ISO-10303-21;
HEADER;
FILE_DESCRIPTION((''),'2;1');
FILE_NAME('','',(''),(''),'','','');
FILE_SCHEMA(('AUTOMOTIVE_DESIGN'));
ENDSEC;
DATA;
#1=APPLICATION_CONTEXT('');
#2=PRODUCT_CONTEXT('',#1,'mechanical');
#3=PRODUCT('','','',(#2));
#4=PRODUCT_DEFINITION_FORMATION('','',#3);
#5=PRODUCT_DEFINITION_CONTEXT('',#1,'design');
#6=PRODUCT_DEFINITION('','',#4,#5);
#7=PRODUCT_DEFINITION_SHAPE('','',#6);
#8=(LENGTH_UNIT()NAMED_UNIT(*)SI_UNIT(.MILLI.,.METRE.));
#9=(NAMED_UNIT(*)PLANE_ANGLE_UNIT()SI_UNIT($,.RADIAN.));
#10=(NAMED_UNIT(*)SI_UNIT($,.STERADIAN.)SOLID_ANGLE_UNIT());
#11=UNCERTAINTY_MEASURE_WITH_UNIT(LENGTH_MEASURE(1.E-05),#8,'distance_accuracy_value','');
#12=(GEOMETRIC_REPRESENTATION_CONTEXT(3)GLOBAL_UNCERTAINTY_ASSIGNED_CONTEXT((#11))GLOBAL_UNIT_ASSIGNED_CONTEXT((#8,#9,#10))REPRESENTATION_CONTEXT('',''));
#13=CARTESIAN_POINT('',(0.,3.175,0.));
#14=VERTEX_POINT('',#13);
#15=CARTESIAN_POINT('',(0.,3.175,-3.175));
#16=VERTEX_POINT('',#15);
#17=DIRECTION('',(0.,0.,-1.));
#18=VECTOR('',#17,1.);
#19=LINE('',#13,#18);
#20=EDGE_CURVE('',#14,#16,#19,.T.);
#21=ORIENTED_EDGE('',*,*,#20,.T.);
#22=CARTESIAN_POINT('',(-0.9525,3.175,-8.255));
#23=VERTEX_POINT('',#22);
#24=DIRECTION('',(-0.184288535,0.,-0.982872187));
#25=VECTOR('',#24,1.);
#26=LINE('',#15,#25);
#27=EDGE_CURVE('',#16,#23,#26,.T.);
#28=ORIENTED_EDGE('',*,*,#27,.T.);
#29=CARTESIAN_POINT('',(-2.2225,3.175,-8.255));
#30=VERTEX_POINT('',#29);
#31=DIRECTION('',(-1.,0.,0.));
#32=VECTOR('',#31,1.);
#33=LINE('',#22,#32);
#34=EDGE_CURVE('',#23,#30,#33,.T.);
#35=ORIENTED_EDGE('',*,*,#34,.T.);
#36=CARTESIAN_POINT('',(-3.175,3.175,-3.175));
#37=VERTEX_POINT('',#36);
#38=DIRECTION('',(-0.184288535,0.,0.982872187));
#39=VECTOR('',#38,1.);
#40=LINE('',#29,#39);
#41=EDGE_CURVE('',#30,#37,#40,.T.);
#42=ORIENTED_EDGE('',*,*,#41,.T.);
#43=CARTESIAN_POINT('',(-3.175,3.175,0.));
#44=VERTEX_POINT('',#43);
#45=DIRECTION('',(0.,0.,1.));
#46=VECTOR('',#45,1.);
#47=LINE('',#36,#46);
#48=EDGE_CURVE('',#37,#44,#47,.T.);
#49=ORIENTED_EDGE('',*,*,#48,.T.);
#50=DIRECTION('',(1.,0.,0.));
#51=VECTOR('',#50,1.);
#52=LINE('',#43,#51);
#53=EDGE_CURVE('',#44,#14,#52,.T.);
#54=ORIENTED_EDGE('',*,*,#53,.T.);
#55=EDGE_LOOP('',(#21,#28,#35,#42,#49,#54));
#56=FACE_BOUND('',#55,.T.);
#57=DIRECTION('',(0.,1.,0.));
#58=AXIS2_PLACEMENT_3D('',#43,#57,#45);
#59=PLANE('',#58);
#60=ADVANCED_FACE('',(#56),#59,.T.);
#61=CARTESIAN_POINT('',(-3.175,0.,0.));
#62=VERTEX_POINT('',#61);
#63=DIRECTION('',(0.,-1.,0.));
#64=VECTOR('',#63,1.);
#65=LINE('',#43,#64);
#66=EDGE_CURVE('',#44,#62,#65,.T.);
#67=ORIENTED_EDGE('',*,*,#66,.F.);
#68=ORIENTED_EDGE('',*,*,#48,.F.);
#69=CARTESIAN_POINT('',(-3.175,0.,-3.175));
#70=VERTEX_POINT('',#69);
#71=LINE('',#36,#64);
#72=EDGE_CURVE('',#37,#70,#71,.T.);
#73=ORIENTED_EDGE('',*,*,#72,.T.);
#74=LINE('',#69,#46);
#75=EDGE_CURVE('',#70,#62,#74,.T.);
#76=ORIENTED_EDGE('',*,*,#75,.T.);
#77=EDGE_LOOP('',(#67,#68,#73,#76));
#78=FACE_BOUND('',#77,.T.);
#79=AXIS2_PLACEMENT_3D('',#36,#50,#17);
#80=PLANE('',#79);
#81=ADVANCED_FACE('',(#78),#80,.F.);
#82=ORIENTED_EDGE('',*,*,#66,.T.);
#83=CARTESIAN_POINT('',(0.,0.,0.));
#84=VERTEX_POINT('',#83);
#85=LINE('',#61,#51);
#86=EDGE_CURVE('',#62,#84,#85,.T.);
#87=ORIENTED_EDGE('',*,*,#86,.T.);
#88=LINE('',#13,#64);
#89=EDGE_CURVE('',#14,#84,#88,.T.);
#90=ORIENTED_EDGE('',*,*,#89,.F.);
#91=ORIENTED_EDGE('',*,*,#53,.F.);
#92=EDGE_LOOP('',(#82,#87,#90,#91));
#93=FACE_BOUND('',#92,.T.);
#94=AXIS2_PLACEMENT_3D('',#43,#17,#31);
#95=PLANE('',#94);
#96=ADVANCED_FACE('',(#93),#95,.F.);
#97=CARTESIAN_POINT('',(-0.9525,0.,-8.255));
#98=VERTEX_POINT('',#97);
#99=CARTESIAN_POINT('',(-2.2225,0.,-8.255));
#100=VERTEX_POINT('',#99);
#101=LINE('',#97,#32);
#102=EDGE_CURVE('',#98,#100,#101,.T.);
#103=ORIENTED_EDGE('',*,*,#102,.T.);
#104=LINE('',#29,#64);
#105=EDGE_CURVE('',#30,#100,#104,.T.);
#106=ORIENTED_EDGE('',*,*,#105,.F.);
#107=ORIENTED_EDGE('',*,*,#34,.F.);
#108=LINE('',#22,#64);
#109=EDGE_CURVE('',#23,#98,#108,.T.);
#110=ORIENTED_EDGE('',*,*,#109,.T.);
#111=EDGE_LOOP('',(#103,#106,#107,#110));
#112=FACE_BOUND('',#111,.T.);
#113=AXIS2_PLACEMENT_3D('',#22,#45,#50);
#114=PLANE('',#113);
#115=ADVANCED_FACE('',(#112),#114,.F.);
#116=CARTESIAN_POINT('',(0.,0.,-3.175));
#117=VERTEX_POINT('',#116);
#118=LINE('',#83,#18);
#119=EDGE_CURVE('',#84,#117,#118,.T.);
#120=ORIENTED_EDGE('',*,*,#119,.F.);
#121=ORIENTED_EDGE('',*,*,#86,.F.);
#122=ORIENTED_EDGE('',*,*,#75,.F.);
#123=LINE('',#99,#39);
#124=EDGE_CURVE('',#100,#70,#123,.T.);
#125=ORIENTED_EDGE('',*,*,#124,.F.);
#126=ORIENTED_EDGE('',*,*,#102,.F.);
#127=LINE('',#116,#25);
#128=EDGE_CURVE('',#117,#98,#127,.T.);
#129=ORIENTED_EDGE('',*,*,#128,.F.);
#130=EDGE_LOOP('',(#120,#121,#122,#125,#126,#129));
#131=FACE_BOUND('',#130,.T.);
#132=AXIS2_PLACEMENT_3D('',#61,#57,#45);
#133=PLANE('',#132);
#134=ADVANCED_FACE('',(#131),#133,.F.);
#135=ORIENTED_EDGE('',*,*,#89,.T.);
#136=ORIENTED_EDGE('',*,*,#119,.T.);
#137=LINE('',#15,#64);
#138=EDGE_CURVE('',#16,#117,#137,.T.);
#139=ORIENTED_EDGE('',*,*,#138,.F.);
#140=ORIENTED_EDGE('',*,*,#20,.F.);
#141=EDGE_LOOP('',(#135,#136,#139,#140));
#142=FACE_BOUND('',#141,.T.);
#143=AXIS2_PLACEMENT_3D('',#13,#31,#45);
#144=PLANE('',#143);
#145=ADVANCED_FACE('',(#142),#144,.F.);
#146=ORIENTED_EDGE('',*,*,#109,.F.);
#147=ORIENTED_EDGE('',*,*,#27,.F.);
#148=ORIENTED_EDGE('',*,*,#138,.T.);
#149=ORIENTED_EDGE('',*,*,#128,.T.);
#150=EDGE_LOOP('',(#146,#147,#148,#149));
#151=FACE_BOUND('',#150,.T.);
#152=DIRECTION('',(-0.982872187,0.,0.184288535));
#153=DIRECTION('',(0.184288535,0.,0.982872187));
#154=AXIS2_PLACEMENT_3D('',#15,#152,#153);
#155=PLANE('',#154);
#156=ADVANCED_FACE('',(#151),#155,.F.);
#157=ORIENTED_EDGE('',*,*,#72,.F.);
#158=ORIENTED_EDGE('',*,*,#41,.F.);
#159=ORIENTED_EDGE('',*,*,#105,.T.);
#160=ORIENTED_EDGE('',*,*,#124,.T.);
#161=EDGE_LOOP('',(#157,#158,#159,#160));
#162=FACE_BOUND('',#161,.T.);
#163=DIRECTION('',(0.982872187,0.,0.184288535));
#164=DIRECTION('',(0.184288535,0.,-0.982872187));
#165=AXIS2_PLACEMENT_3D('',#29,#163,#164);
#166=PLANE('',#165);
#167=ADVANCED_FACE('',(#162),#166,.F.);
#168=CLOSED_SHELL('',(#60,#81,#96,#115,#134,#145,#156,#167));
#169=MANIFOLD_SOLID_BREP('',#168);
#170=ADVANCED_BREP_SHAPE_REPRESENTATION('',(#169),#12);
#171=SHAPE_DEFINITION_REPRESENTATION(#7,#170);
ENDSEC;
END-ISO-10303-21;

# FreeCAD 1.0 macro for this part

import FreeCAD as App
import Part
import Sketcher
Q = App.Units.Quantity


def add_polygon(sketch, points):
    """Adds a closed chain of lines whose ends are joined by coincident constraints."""
    first, n = sketch.GeometryCount, len(points)
    for a, b in zip(points, points[1:] + points[:1]):
        sketch.addGeometry(Part.LineSegment(App.Vector(*a, 0), App.Vector(*b, 0)), False)
    for i in range(n):
        sketch.addConstraint(Sketcher.Constraint("Coincident", first + i, 2, first + (i + 1) % n, 1))

doc = App.newDocument("Part")
body = doc.addObject("PartDesign::Body", "Body")

# Sketch on XZ plane
sketch1 = body.newObject("Sketcher::SketchObject", "Sketch")
sketch1.AttachmentSupport = (doc.getObject("XZ_Plane"), [""])
sketch1.MapMode = "FlatFace"
add_polygon(sketch1, [(-3.175, 0), (0, 0), (0, -3.175), (-0.9525, -8.255), (-2.2225, -8.255), (-3.175, -3.175)])  # lines 0-5
sketch1.addConstraint([
    Sketcher.Constraint("Horizontal", 0),
    Sketcher.Constraint("Vertical", 1),
    Sketcher.Constraint("Horizontal", 3),
    Sketcher.Constraint("Vertical", 5),
    Sketcher.Constraint("Coincident", 0, 2, -1, 1),
    Sketcher.Constraint("Horizontal", 1, 2, 4, 2),
    Sketcher.Constraint("Equal", 0, 1),
    Sketcher.Constraint("Equal", 2, 4),
    Sketcher.Constraint("DistanceX", 3, 2, 3, 1, Q("0.05 in")),
    Sketcher.Constraint("DistanceY", 2, 2, 1, 2, Q("0.2 in")),
    Sketcher.Constraint("DistanceX", 0, 1, 0, 2, Q("0.125 in")),
])
pad1 = body.newObject("PartDesign::Pad", "Pad")
pad1.Profile = sketch1
pad1.Length = Q("0.125 in")
pad1.Reversed = True

doc.recompute()
